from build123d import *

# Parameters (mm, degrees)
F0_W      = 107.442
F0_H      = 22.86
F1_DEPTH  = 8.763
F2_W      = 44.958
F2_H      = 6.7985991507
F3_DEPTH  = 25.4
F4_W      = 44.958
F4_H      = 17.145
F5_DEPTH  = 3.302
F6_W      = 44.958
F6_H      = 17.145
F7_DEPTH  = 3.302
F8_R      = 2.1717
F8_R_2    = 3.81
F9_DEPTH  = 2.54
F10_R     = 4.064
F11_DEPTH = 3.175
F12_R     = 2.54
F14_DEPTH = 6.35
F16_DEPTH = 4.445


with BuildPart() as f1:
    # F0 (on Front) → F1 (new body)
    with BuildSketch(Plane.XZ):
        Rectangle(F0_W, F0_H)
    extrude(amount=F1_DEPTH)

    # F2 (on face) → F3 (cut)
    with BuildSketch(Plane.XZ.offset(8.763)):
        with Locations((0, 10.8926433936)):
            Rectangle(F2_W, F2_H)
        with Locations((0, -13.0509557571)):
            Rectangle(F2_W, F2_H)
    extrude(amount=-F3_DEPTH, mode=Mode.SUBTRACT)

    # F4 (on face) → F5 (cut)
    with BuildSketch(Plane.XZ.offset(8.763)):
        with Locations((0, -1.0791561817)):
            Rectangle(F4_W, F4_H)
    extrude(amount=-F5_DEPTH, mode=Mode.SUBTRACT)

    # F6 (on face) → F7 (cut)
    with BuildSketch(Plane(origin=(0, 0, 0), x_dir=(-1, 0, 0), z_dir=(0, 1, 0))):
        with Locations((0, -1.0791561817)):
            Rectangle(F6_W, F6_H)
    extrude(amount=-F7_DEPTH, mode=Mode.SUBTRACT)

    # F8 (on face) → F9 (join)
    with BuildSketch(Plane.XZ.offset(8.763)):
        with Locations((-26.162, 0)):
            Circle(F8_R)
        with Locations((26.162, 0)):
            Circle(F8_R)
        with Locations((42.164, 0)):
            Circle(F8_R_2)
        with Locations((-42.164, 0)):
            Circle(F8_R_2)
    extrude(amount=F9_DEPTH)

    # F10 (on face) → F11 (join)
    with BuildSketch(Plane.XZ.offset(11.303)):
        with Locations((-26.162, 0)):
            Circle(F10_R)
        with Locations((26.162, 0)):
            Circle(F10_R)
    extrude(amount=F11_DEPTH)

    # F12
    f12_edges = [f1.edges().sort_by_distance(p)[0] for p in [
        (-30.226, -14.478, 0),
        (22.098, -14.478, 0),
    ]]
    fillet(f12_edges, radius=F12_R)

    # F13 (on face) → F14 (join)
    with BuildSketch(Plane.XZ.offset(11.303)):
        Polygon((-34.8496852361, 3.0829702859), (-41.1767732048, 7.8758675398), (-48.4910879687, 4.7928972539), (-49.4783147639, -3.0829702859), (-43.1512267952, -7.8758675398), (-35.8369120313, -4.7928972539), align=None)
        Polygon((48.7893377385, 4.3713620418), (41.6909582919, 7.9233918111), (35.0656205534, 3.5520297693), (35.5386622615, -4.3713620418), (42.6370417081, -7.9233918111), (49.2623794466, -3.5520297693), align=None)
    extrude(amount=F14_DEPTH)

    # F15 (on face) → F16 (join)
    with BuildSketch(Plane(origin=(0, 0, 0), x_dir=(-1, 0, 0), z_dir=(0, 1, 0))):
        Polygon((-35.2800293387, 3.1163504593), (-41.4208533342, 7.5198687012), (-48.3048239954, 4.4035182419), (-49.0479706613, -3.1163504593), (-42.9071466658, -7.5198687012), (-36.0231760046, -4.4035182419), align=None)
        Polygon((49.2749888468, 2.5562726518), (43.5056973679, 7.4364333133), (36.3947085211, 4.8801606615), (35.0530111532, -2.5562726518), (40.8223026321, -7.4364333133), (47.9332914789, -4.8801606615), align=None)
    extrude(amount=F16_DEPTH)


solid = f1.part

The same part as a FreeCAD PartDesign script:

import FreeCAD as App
import Part
import Sketcher
Q = App.Units.Quantity


def edges_at(feature, points):
    """Names of the edges that pass closest to the given points."""
    edges = feature.Shape.Edges
    near = lambda p: min(range(len(edges)), key=lambda i: edges[i].distToShape(Part.Vertex(*p))[0])
    return sorted({f"Edge{near(p) + 1}" for p in points})


def add_polygon(sketch, points):
    """Adds a closed chain of lines whose ends are joined by coincident constraints."""
    first, n = sketch.GeometryCount, len(points)
    for a, b in zip(points, points[1:] + points[:1]):
        sketch.addGeometry(Part.LineSegment(App.Vector(*a, 0), App.Vector(*b, 0)), False)
    for i in range(n):
        sketch.addConstraint(Sketcher.Constraint("Coincident", first + i, 2, first + (i + 1) % n, 1))

doc = App.newDocument("Part")
body = doc.addObject("PartDesign::Body", "Body")

sketch1 = body.newObject("Sketcher::SketchObject", "Sketch")
sketch1.AttachmentSupport = (doc.getObject("XZ_Plane"), [""])
sketch1.MapMode = "FlatFace"
add_polygon(sketch1, [(-53.721, 11.43), (-53.721, -11.43), (53.721, -11.43), (53.721, 11.43)])
sketch1.addConstraint(Sketcher.Constraint("Vertical", 0))
sketch1.addConstraint(Sketcher.Constraint("Horizontal", 1))
sketch1.addConstraint(Sketcher.Constraint("Vertical", 2))
sketch1.addConstraint(Sketcher.Constraint("Horizontal", 3))
sketch1.addConstraint(Sketcher.Constraint("Symmetric", 0, 2, 2, 2, -1, 1))
sketch1.addConstraint(Sketcher.Constraint("DistanceY", 0, 2, 0, 1, Q("0.9 in")))
sketch1.addConstraint(Sketcher.Constraint("DistanceX", 1, 1, 1, 2, Q("4.23 in")))
pad1 = body.newObject("PartDesign::Pad", "Pad")
pad1.Profile = sketch1
pad1.Length = Q("0.345 in")

sketch2 = body.newObject("Sketcher::SketchObject", "Sketch001")
sketch2.AttachmentSupport = (doc.getObject("XZ_Plane"), [""])
sketch2.MapMode = "FlatFace"
sketch2.AttachmentOffset = App.Placement(App.Vector(0, 0, 0.345 * 25.4), App.Rotation())
add_polygon(sketch2, [(-22.479, 14.291943), (-22.479, 7.493344), (22.479, 7.493344), (22.479, 14.291943)])
add_polygon(sketch2, [(-22.479, -9.651656), (-22.479, -16.450255), (22.479, -16.450255), (22.479, -9.651656)])
sketch2.addConstraint(Sketcher.Constraint("Vertical", 0))
sketch2.addConstraint(Sketcher.Constraint("Horizontal", 1))
sketch2.addConstraint(Sketcher.Constraint("Vertical", 2))
sketch2.addConstraint(Sketcher.Constraint("Horizontal", 3))
sketch2.addConstraint(Sketcher.Constraint("Vertical", 4))
sketch2.addConstraint(Sketcher.Constraint("Horizontal", 5))
sketch2.addConstraint(Sketcher.Constraint("Vertical", 6))
sketch2.addConstraint(Sketcher.Constraint("Horizontal", 7))
sketch2.addConstraint(Sketcher.Constraint("Vertical", 3, 2, 4, 2))
sketch2.addConstraint(Sketcher.Constraint("Vertical", 2, 2, 5, 2))
sketch2.addConstraint(Sketcher.Constraint("Equal", 2, 4))
sketch2.addConstraint(Sketcher.Constraint("DistanceX", 1, 1, 1, 2, Q("1.77 in")))
sketch2.addConstraint(Sketcher.Constraint("DistanceX", 0, 2, -1, 1, Q("0.885 in")))
sketch2.addConstraint(Sketcher.Constraint("DistanceY", 6, 2, 1, 2, Q("0.675 in")))
sketch2.addConstraint(Sketcher.Constraint("DistanceY", 0, 2, 0, 1, Q("6.798599 mm")))
sketch2.addConstraint(Sketcher.Constraint("DistanceY", -1, 1, 0, 2, Q("7.493344 mm")))
pocket1 = body.newObject("PartDesign::Pocket", "Pocket")
pocket1.Profile = sketch2
pocket1.Length = Q("1 in")

sketch3 = body.newObject("Sketcher::SketchObject", "Sketch002")
sketch3.AttachmentSupport = (doc.getObject("XZ_Plane"), [""])
sketch3.MapMode = "FlatFace"
sketch3.AttachmentOffset = App.Placement(App.Vector(0, 0, 0.345 * 25.4), App.Rotation())
add_polygon(sketch3, [(-22.479, 7.493344), (-22.479, -9.651656), (22.479, -9.651656), (22.479, 7.493344)])
sketch3.addConstraint(Sketcher.Constraint("Vertical", 0))
sketch3.addConstraint(Sketcher.Constraint("Horizontal", 1))
sketch3.addConstraint(Sketcher.Constraint("Vertical", 2))
sketch3.addConstraint(Sketcher.Constraint("Horizontal", 3))
sketch3.addConstraint(Sketcher.Constraint("DistanceX", 1, 1, 1, 2, Q("1.77 in")))
sketch3.addConstraint(Sketcher.Constraint("DistanceY", 0, 2, 0, 1, Q("0.675 in")))
sketch3.addConstraint(Sketcher.Constraint("DistanceX", 0, 2, -1, 1, Q("0.885 in")))
sketch3.addConstraint(Sketcher.Constraint("DistanceY", 0, 2, -1, 1, Q("9.651656 mm")))
pocket2 = body.newObject("PartDesign::Pocket", "Pocket001")
pocket2.Profile = sketch3
pocket2.Length = Q("0.13 in")

sketch4 = body.newObject("Sketcher::SketchObject", "Sketch003")
sketch4.AttachmentSupport = (doc.getObject("XZ_Plane"), [""])
sketch4.MapMode = "FlatFace"
add_polygon(sketch4, [(22.479, 7.493344), (22.479, -9.651656), (-22.479, -9.651656), (-22.479, 7.493344)])
sketch4.addConstraint(Sketcher.Constraint("Vertical", 0))
sketch4.addConstraint(Sketcher.Constraint("Horizontal", 1))
sketch4.addConstraint(Sketcher.Constraint("Vertical", 2))
sketch4.addConstraint(Sketcher.Constraint("Horizontal", 3))
sketch4.addConstraint(Sketcher.Constraint("DistanceX", 1, 2, 1, 1, Q("1.77 in")))
sketch4.addConstraint(Sketcher.Constraint("DistanceY", 0, 2, 0, 1, Q("0.675 in")))
sketch4.addConstraint(Sketcher.Constraint("DistanceX", -1, 1, 0, 2, Q("0.885 in")))
sketch4.addConstraint(Sketcher.Constraint("DistanceY", 0, 2, -1, 1, Q("9.651656 mm")))
pocket3 = body.newObject("PartDesign::Pocket", "Pocket002")
pocket3.Profile = sketch4
pocket3.Length = Q("0.13 in")
pocket3.Reversed = True

sketch5 = body.newObject("Sketcher::SketchObject", "Sketch004")
sketch5.AttachmentSupport = (doc.getObject("XZ_Plane"), [""])
sketch5.MapMode = "FlatFace"
sketch5.AttachmentOffset = App.Placement(App.Vector(0, 0, 0.345 * 25.4), App.Rotation())
sketch5.addGeometry(Part.Circle(App.Vector(-26.162, 0, 0), App.Vector(0, 0, 1), 2.1717), False)
sketch5.addGeometry(Part.Circle(App.Vector(26.162, 0, 0), App.Vector(0, 0, 1), 2.1717), False)
sketch5.addGeometry(Part.Circle(App.Vector(42.164, 0, 0), App.Vector(0, 0, 1), 3.81), False)
sketch5.addGeometry(Part.Circle(App.Vector(-42.164, 0, 0), App.Vector(0, 0, 1), 3.81), False)
sketch5.addConstraint(Sketcher.Constraint("Equal", 0, 1))
sketch5.addConstraint(Sketcher.Constraint("Equal", 2, 3))
sketch5.addConstraint(Sketcher.Constraint("Symmetric", 0, 3, 1, 3, -1, 1))
sketch5.addConstraint(Sketcher.Constraint("Symmetric", 2, 3, 3, 3, -1, 1))
sketch5.addConstraint(Sketcher.Constraint("PointOnObject", 0, 3, -1))
sketch5.addConstraint(Sketcher.Constraint("PointOnObject", 2, 3, -1))
sketch5.addConstraint(Sketcher.Constraint("Diameter", 2, Q("0.3 in")))
sketch5.addConstraint(Sketcher.Constraint("Diameter", 0, Q("0.171 in")))
sketch5.addConstraint(Sketcher.Constraint("DistanceX", 0, 3, -1, 1, Q("1.03 in")))
sketch5.addConstraint(Sketcher.Constraint("DistanceX", -1, 1, 2, 3, Q("1.66 in")))
pad2 = body.newObject("PartDesign::Pad", "Pad001")
pad2.Profile = sketch5
pad2.Length = Q("0.1 in")

sketch6 = body.newObject("Sketcher::SketchObject", "Sketch005")
sketch6.AttachmentSupport = (doc.getObject("XZ_Plane"), [""])
sketch6.MapMode = "FlatFace"
sketch6.AttachmentOffset = App.Placement(App.Vector(0, 0, 0.445 * 25.4), App.Rotation())
sketch6.addGeometry(Part.Circle(App.Vector(-26.162, 0, 0), App.Vector(0, 0, 1), 4.064), False)
sketch6.addGeometry(Part.Circle(App.Vector(26.162, 0, 0), App.Vector(0, 0, 1), 4.064), False)
sketch6.addConstraint(Sketcher.Constraint("Equal", 0, 1))
sketch6.addConstraint(Sketcher.Constraint("Symmetric", 0, 3, 1, 3, -1, 1))
sketch6.addConstraint(Sketcher.Constraint("PointOnObject", 0, 3, -1))
sketch6.addConstraint(Sketcher.Constraint("Diameter", 0, Q("0.32 in")))
sketch6.addConstraint(Sketcher.Constraint("DistanceX", 0, 3, -1, 1, Q("1.03 in")))
pad3 = body.newObject("PartDesign::Pad", "Pad002")
pad3.Profile = sketch6
pad3.Length = Q("0.125 in")
doc.recompute()

fillet = body.newObject("PartDesign::Fillet", "Fillet")
fillet.Base = (pad3, edges_at(pad3, [(-30.226, -14.478, 0), (22.098, -14.478, 0)]))
fillet.Radius = Q("0.1 in")

sketch7 = body.newObject("Sketcher::SketchObject", "Sketch006")
sketch7.AttachmentSupport = (doc.getObject("XZ_Plane"), [""])
sketch7.MapMode = "FlatFace"
sketch7.AttachmentOffset = App.Placement(App.Vector(0, 0, 0.445 * 25.4), App.Rotation())
add_polygon(sketch7, [(-34.849685, 3.08297), (-41.176773, 7.875868), (-48.491088, 4.792897), (-49.478315, -3.08297), (-43.151227, -7.875868), (-35.836912, -4.792897)])
add_polygon(sketch7, [(48.789338, 4.371362), (41.690958, 7.923392), (35.065621, 3.55203), (35.538662, -4.371362), (42.637042, -7.923392), (49.262379, -3.55203)])
sketch7.addConstraint(Sketcher.Constraint("Parallel", 0, 3))
sketch7.addConstraint(Sketcher.Constraint("Parallel", 1, 4))
sketch7.addConstraint(Sketcher.Constraint("Parallel", 2, 5))
sketch7.addConstraint(Sketcher.Constraint("Parallel", 6, 9))
sketch7.addConstraint(Sketcher.Constraint("Parallel", 7, 10))
sketch7.addConstraint(Sketcher.Constraint("Parallel", 8, 11))
sketch7.addConstraint(Sketcher.Constraint("Equal", 0, 1))
sketch7.addConstraint(Sketcher.Constraint("Equal", 1, 2))
sketch7.addConstraint(Sketcher.Constraint("Equal", 2, 3))
sketch7.addConstraint(Sketcher.Constraint("Equal", 5, 6))
sketch7.addConstraint(Sketcher.Constraint("Equal", 6, 7))
sketch7.addConstraint(Sketcher.Constraint("Equal", 7, 8))
sketch7.addConstraint(Sketcher.Constraint("Equal", 8, 9))
sketch7.addConstraint(Sketcher.Constraint("Distance", 0, Q("0.3125 in")))
sketch7.addConstraint(Sketcher.Constraint("DistanceY", 10, 2, 5, 2, Q("6.635 mm")))
sketch7.addConstraint(Sketcher.Constraint("DistanceY", 2, 2, -1, 1, Q("3.08297 mm")))
sketch7.addConstraint(Sketcher.Constraint("DistanceY", -1, 1, 5, 2, Q("3.08297 mm")))
sketch7.addConstraint(Sketcher.Constraint("DistanceX", -1, 1, 6, 2, Q("41.690958 mm")))
sketch7.addConstraint(Sketcher.Constraint("DistanceY", -1, 1, 6, 2, Q("7.923392 mm")))
sketch7.addConstraint(Sketcher.Constraint("DistanceX", -1, 1, 7, 2, Q("35.065621 mm")))
sketch7.addConstraint(Sketcher.Constraint("DistanceX", -1, 1, 9, 2, Q("42.637042 mm")))
sketch7.addConstraint(Sketcher.Constraint("DistanceY", 1, 2, 0, 2, Q("3.08297 mm")))
sketch7.addConstraint(Sketcher.Constraint("DistanceX", 2, 2, 0, 2, Q("8.301542 mm")))
sketch7.addConstraint(Sketcher.Constraint("DistanceX", 4, 2, 6, 2, Q("77.52787 mm")))
pad4 = body.newObject("PartDesign::Pad", "Pad003")
pad4.Profile = sketch7
pad4.Length = Q("0.25 in")

sketch8 = body.newObject("Sketcher::SketchObject", "Sketch007")
sketch8.AttachmentSupport = (doc.getObject("XZ_Plane"), [""])
sketch8.MapMode = "FlatFace"
add_polygon(sketch8, [(35.280029, 3.11635), (41.420853, 7.519869), (48.304824, 4.403518), (49.047971, -3.11635), (42.907147, -7.519869), (36.023176, -4.403518)])
add_polygon(sketch8, [(-49.274989, 2.556273), (-43.505697, 7.436433), (-36.394709, 4.880161), (-35.053011, -2.556273), (-40.822303, -7.436433), (-47.933291, -4.880161)])
sketch8.addConstraint(Sketcher.Constraint("Parallel", 0, 3))
sketch8.addConstraint(Sketcher.Constraint("Parallel", 1, 4))
sketch8.addConstraint(Sketcher.Constraint("Parallel", 2, 5))
sketch8.addConstraint(Sketcher.Constraint("Parallel", 6, 9))
sketch8.addConstraint(Sketcher.Constraint("Parallel", 7, 10))
sketch8.addConstraint(Sketcher.Constraint("Parallel", 8, 11))
sketch8.addConstraint(Sketcher.Constraint("Equal", 0, 1))
sketch8.addConstraint(Sketcher.Constraint("Equal", 1, 2))
sketch8.addConstraint(Sketcher.Constraint("Equal", 2, 3))
sketch8.addConstraint(Sketcher.Constraint("Equal", 5, 6))
sketch8.addConstraint(Sketcher.Constraint("Equal", 6, 7))
sketch8.addConstraint(Sketcher.Constraint("Equal", 7, 8))
sketch8.addConstraint(Sketcher.Constraint("Equal", 8, 9))
sketch8.addConstraint(Sketcher.Constraint("Distance", 0, Q("0.2975 in")))
sketch8.addConstraint(Sketcher.Constraint("DistanceY", 2, 2, 5, 2, Q("6.232701 mm")))
sketch8.addConstraint(Sketcher.Constraint("DistanceY", -1, 1, 0, 2, Q("7.519869 mm")))
sketch8.addConstraint(Sketcher.Constraint("DistanceY", -1, 1, 1, 2, Q("4.403518 mm")))
sketch8.addConstraint(Sketcher.Constraint("DistanceX", -1, 1, 2, 2, Q("49.047971 mm")))
sketch8.addConstraint(Sketcher.Constraint("DistanceY", 2, 2, -1, 1, Q("3.11635 mm")))
sketch8.addConstraint(Sketcher.Constraint("DistanceX", 7, 2, -1, 1, Q("36.394709 mm")))
sketch8.addConstraint(Sketcher.Constraint("DistanceY", -1, 1, 7, 2, Q("4.880161 mm")))
sketch8.addConstraint(Sketcher.Constraint("DistanceX", 8, 2, -1, 1, Q("35.053011 mm")))
sketch8.addConstraint(Sketcher.Constraint("DistanceX", 10, 2, -1, 1, Q("47.933291 mm")))
sketch8.addConstraint(Sketcher.Constraint("DistanceY", 10, 2, -1, 1, Q("4.880161 mm")))
pad5 = body.newObject("PartDesign::Pad", "Pad004")
pad5.Profile = sketch8
pad5.Length = Q("0.175 in")
pad5.Reversed = True

doc.recompute()
